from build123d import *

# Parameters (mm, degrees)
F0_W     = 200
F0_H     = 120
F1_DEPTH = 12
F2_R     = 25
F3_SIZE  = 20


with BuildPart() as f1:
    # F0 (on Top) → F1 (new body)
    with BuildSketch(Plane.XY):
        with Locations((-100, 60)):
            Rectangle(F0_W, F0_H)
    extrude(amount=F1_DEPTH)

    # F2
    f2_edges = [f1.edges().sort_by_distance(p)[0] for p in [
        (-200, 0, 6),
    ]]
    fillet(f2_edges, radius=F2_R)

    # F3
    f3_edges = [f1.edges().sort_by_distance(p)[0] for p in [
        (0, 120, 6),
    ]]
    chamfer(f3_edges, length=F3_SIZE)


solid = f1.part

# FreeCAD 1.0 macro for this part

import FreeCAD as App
import Part
import Sketcher
from FreeCAD import Vector
Q = App.Units.Quantity


def edges_at(feature, points):
    """Names of the edges that pass closest to the given points."""
    edges = feature.Shape.Edges
    near = lambda p: min(range(len(edges)), key=lambda i: edges[i].distToShape(Part.Vertex(*p))[0])
    return sorted({f"Edge{near(p) + 1}" for p in points})


def add_polygon(sketch, points):
    """Adds a closed chain of lines whose ends are joined by coincident constraints."""
    first, n = sketch.GeometryCount, len(points)
    for a, b in zip(points, points[1:] + points[:1]):
        sketch.addGeometry(Part.LineSegment(App.Vector(*a, 0), App.Vector(*b, 0)), False)
    for i in range(n):
        sketch.addConstraint(Sketcher.Constraint("Coincident", first + i, 2, first + (i + 1) % n, 1))

doc = App.newDocument("Part")
params = doc.addObject("Spreadsheet::Sheet", "Params")
for row, (alias, value) in enumerate([
    ("sketch1_width", "200 mm"),
    ("sketch1_height", "120 mm"),
    ("pad1_length", "12 mm"),
    ("fillet_radius", "25 mm"),
    ("chamfer_size", "20 mm"),
], start=1):
    params.set(f"A{row}", alias)
    params.set(f"B{row}", "=" + value)
    params.setAlias(f"B{row}", alias)

body = doc.addObject("PartDesign::Body", "Body")

# Sketch on XY plane
sketch1 = doc.addObject("Sketcher::SketchObject", "Sketch")
body.addObject(sketch1)
sketch1.AttachmentSupport = (doc.XY_Plane, [""])
sketch1.MapMode = "FlatFace"
add_polygon(sketch1, [(-200, 120), (-200, 0), (0, 0), (0, 120)])  # lines 0-3
sketch1.addConstraint([
    Sketcher.Constraint("Vertical", 0),
    Sketcher.Constraint("Horizontal", 1),
    Sketcher.Constraint("Vertical", 2),
    Sketcher.Constraint("Horizontal", 3),
    Sketcher.Constraint("Coincident", 1, 2, -1, 1),
    Sketcher.Constraint("DistanceX", 1, 1, 1, 2, Q("200 mm")),
    Sketcher.Constraint("DistanceY", 0, 2, 0, 1, Q("120 mm")),
])
sketch1.setExpression("Constraints[9]", "Params.sketch1_width")
sketch1.setExpression("Constraints[10]", "Params.sketch1_height")
pad1 = doc.addObject("PartDesign::Pad", "Pad")
body.addObject(pad1)
pad1.Profile = sketch1
pad1.setExpression("Length", "Params.pad1_length")
doc.recompute()

fillet = doc.addObject("PartDesign::Fillet", "Fillet")
body.addObject(fillet)
fillet.Base = (pad1, edges_at(pad1, [(-200, 0, 6)]))
fillet.setExpression("Radius", "Params.fillet_radius")
doc.recompute()

chamfer = doc.addObject("PartDesign::Chamfer", "Chamfer")
body.addObject(chamfer)
chamfer.Base = (fillet, edges_at(fillet, [(0, 120, 6)]))
chamfer.setExpression("Size", "Params.chamfer_size")

doc.recompute()
